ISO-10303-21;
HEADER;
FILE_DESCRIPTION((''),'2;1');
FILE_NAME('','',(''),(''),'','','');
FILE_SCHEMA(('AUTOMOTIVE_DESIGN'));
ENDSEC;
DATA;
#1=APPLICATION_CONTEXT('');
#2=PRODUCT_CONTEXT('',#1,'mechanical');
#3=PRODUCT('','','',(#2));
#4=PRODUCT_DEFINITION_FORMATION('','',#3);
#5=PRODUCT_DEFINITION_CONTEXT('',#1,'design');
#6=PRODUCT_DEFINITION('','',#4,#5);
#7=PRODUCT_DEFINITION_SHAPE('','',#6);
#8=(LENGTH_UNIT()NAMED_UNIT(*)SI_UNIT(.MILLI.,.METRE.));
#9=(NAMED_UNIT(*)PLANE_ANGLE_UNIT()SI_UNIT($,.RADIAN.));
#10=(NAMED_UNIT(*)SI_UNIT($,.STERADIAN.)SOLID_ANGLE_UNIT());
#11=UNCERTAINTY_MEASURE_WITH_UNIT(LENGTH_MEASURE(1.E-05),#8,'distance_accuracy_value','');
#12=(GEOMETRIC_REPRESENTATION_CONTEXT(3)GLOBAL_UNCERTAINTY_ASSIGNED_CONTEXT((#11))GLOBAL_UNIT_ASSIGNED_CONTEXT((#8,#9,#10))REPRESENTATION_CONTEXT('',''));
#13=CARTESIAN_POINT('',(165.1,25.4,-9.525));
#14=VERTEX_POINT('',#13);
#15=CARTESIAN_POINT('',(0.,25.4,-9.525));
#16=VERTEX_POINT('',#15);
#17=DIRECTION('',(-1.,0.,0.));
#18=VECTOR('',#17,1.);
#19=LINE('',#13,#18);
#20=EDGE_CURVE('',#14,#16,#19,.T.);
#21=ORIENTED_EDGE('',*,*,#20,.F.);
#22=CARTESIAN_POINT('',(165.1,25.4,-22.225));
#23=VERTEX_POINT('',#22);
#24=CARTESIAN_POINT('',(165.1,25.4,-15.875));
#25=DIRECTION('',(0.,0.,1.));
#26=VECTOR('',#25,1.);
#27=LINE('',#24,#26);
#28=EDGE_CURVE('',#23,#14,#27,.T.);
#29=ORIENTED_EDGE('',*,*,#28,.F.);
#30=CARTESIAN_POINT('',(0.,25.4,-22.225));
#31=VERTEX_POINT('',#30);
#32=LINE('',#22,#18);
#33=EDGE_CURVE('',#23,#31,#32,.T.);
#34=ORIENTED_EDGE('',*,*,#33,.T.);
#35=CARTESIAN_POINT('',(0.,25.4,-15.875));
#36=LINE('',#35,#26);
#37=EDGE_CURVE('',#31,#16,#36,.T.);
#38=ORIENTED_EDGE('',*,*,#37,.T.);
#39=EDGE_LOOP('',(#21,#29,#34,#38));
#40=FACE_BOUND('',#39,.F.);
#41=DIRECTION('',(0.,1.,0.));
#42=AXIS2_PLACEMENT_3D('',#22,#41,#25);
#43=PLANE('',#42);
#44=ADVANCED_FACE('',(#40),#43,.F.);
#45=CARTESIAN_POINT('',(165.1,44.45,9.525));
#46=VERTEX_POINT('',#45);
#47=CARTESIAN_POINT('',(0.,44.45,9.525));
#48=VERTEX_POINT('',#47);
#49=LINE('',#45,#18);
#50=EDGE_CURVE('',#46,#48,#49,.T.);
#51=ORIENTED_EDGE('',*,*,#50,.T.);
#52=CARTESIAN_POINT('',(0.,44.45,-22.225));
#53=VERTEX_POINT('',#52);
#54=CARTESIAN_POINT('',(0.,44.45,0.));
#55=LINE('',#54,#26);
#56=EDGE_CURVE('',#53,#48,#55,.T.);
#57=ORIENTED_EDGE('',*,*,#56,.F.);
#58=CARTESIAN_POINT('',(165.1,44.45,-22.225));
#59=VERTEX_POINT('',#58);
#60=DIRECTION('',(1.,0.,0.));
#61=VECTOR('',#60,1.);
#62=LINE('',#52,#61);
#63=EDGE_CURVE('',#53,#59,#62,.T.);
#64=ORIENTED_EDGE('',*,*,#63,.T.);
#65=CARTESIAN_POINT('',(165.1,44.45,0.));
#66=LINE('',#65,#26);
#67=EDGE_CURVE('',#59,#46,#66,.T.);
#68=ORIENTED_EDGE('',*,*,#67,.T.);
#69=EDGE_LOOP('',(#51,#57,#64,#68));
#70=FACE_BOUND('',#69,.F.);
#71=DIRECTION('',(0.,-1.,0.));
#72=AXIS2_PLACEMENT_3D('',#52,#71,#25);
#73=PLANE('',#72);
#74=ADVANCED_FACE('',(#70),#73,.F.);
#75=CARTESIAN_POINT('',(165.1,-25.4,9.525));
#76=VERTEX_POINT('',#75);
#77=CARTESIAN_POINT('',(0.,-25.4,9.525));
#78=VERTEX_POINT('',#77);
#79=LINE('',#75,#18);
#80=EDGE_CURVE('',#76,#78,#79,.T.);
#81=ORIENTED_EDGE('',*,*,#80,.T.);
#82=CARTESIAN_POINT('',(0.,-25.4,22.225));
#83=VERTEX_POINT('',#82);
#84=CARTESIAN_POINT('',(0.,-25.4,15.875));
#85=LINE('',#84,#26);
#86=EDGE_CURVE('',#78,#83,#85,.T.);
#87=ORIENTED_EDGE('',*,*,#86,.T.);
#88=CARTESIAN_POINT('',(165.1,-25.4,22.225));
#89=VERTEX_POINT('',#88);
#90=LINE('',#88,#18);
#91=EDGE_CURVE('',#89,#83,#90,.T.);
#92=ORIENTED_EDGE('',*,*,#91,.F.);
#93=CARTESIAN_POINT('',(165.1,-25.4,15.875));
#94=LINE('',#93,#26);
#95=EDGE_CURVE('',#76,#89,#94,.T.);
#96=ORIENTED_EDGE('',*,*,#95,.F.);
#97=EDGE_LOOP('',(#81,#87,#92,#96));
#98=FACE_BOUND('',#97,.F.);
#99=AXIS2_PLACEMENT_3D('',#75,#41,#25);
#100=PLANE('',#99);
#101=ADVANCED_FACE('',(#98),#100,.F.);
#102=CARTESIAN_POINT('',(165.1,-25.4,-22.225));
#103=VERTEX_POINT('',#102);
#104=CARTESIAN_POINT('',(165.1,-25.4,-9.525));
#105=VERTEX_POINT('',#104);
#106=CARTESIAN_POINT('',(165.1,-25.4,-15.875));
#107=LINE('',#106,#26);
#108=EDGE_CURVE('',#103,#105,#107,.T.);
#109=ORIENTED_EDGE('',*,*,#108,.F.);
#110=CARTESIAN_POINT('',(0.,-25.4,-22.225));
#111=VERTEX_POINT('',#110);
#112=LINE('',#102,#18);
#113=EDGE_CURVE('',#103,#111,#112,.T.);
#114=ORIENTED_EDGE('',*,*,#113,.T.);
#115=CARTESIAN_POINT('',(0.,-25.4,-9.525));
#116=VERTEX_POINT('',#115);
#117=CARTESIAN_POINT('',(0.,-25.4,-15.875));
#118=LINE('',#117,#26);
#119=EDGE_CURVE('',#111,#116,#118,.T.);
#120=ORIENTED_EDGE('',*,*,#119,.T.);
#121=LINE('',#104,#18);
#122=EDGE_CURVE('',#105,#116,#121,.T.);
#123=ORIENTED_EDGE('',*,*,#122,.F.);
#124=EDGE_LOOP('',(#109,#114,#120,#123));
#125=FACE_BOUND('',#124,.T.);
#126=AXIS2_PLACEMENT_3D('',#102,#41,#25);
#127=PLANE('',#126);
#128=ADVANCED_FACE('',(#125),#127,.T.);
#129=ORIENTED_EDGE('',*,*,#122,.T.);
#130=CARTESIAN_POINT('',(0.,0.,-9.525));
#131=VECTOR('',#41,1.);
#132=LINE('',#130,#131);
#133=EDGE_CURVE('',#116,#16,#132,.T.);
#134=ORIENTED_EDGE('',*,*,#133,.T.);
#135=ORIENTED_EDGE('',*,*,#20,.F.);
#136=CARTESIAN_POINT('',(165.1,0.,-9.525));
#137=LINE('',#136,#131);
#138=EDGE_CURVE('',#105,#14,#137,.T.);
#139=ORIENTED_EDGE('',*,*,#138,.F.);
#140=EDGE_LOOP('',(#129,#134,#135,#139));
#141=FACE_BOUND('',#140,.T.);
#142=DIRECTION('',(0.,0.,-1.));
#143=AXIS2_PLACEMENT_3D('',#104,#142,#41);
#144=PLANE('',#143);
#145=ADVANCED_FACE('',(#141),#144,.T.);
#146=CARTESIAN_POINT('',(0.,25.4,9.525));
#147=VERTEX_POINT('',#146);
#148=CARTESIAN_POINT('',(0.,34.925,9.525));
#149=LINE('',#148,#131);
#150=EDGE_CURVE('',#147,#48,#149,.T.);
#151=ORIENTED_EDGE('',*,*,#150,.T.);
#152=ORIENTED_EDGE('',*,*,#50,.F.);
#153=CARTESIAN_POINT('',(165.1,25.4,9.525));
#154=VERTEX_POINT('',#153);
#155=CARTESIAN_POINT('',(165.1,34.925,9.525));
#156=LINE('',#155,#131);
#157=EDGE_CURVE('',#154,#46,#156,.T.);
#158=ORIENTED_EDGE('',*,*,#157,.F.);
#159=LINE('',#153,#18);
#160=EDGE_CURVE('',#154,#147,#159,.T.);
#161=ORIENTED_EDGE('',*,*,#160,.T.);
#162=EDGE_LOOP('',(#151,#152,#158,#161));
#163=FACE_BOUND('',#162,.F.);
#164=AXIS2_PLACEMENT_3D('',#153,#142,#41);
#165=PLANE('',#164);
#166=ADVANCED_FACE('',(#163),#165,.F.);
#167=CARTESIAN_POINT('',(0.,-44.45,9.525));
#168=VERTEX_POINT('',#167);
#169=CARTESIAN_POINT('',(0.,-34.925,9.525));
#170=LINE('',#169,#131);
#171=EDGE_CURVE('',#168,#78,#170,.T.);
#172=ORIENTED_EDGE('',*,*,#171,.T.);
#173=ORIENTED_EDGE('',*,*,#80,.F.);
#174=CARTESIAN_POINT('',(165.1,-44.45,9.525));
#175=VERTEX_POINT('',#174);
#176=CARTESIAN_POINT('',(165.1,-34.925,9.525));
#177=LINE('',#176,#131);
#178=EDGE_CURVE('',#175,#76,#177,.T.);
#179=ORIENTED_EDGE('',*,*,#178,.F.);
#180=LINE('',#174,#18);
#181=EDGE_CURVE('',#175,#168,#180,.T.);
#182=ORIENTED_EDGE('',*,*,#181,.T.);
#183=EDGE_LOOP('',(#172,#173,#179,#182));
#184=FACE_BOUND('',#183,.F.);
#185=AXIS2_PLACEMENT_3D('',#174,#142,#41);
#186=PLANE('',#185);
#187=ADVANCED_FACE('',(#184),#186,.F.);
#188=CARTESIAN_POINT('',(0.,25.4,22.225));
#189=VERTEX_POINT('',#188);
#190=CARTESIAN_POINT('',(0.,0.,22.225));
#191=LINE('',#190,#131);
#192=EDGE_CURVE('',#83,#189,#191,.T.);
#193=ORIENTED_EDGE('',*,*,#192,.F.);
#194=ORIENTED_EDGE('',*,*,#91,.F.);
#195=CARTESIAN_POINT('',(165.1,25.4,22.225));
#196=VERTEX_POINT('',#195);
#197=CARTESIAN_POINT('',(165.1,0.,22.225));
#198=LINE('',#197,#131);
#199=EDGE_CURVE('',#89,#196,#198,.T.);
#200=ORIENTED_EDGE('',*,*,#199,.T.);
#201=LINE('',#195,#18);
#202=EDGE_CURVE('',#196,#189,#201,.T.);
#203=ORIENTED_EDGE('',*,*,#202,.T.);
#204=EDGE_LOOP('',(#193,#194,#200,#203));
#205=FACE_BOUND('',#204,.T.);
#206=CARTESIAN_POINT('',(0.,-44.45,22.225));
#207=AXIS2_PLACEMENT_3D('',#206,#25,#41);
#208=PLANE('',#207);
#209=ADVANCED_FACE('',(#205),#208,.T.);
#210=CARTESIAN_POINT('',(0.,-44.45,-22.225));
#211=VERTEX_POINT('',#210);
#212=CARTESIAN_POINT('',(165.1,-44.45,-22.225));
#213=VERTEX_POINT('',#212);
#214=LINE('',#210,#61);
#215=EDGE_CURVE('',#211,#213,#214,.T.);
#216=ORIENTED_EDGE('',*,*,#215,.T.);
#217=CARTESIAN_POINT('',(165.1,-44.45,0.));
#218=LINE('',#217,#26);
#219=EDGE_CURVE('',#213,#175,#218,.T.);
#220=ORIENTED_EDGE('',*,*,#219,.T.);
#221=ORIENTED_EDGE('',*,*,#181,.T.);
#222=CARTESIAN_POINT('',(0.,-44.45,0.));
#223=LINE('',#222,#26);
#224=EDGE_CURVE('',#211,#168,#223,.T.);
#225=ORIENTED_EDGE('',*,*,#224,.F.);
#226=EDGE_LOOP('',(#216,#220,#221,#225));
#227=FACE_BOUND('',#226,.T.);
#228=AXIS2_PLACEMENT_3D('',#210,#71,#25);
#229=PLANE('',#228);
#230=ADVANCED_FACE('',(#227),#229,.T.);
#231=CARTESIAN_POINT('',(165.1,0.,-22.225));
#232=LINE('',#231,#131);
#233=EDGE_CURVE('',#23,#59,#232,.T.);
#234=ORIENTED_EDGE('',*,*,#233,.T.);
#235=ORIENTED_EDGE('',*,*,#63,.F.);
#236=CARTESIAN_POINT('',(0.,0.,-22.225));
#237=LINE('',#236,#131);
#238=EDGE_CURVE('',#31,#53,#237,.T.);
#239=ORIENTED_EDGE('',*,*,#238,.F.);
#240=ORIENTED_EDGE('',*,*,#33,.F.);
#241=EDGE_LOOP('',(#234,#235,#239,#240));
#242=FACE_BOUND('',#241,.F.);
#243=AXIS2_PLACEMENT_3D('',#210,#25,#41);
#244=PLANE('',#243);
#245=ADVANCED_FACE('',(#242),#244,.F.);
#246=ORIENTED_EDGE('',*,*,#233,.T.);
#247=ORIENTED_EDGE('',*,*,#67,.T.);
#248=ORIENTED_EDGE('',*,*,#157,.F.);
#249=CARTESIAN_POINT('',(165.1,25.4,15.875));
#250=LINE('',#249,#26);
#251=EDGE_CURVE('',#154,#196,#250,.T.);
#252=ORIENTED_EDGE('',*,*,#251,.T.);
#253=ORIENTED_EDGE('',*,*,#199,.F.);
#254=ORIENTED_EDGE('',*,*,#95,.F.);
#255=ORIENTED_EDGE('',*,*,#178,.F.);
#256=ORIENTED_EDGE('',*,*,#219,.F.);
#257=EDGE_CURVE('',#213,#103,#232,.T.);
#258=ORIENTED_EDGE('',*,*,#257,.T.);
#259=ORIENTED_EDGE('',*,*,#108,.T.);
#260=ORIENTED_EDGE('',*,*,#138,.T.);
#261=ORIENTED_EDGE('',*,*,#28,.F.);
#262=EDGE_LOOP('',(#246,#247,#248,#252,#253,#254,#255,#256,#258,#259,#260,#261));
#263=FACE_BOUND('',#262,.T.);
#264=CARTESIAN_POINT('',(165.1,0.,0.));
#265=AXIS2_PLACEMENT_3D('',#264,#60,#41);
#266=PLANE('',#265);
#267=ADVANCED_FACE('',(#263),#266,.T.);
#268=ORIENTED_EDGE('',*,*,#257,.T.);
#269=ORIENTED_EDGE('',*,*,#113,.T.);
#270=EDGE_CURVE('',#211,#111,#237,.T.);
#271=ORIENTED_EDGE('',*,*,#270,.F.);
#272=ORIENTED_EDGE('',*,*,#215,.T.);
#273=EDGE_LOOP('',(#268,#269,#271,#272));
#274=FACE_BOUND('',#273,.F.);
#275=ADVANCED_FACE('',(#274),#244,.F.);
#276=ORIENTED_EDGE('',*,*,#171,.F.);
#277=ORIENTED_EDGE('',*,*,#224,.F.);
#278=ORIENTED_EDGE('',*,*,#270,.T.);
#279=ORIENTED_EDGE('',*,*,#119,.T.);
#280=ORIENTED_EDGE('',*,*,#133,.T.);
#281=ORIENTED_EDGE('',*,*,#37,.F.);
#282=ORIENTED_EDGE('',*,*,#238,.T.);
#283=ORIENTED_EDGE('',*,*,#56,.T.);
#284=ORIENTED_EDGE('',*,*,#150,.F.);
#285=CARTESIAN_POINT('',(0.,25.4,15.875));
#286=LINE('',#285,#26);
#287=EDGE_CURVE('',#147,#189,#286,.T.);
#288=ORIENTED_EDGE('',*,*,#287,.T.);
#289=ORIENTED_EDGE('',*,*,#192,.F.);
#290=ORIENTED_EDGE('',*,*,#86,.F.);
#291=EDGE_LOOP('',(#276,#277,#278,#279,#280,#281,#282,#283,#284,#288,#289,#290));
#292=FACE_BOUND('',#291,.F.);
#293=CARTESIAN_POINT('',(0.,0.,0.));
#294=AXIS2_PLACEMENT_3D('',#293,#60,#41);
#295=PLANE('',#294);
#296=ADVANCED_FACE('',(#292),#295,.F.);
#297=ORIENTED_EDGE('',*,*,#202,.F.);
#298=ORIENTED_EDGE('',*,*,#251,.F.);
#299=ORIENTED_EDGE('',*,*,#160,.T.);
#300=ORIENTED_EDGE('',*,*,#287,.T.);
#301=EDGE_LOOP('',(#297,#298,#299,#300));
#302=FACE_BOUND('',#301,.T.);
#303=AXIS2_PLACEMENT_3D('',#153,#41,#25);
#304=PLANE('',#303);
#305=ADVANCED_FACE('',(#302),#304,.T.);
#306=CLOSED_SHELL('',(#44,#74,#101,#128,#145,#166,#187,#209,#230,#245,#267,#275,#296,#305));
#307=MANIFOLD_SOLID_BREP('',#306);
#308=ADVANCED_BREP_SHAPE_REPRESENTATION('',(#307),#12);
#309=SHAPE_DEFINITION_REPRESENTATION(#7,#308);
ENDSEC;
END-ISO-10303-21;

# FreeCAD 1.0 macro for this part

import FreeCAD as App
import Part
import Sketcher
Q = App.Units.Quantity

doc = App.newDocument("Part")
body = doc.addObject("PartDesign::Body", "Body")

# Sketch on YZ plane
sketch1 = body.newObject("Sketcher::SketchObject", "Sketch")
sketch1.AttachmentSupport = (doc.getObject("YZ_Plane"), [""])
sketch1.MapMode = "FlatFace"
sketch1.addGeometry(Part.LineSegment(App.Vector(-44.45, 22.225, 0), App.Vector(-44.45, -22.225, 0)), False)
sketch1.addGeometry(Part.LineSegment(App.Vector(-44.45, -22.225, 0), App.Vector(44.45, -22.225, 0)), False)
sketch1.addGeometry(Part.LineSegment(App.Vector(44.45, -22.225, 0), App.Vector(44.45, 22.225, 0)), False)
sketch1.addGeometry(Part.LineSegment(App.Vector(44.45, 22.225, 0), App.Vector(-44.45, 22.225, 0)), False)
sketch1.addConstraint(Sketcher.Constraint("Coincident", 0, 2, 1, 1))
sketch1.addConstraint(Sketcher.Constraint("Coincident", 1, 2, 2, 1))
sketch1.addConstraint(Sketcher.Constraint("Coincident", 2, 2, 3, 1))
sketch1.addConstraint(Sketcher.Constraint("Coincident", 3, 2, 0, 1))
sketch1.addConstraint(Sketcher.Constraint("Vertical", 0))
sketch1.addConstraint(Sketcher.Constraint("Horizontal", 1))
sketch1.addConstraint(Sketcher.Constraint("Vertical", 2))
sketch1.addConstraint(Sketcher.Constraint("Horizontal", 3))
sketch1.addConstraint(Sketcher.Constraint("Symmetric", 0, 2, 2, 2, -1, 1))
sketch1.addConstraint(Sketcher.Constraint("DistanceX", 1, 1, 1, 2, Q("3.5 in")))
sketch1.addConstraint(Sketcher.Constraint("DistanceY", 0, 2, 0, 1, Q("1.75 in")))
pad1 = body.newObject("PartDesign::Pad", "Pad")
pad1.Profile = sketch1
pad1.Length = Q("6.5 in")

# Sketch on YZ plane
sketch2 = body.newObject("Sketcher::SketchObject", "Sketch001")
sketch2.AttachmentSupport = (doc.getObject("YZ_Plane"), [""])
sketch2.MapMode = "FlatFace"
sketch2.AttachmentOffset = App.Placement(App.Vector(0, 0, 6.5 * 25.4), App.Rotation())
sketch2.addGeometry(Part.LineSegment(App.Vector(-44.45, 22.225, 0), App.Vector(-44.45, 9.525, 0)), False)
sketch2.addGeometry(Part.LineSegment(App.Vector(-44.45, 9.525, 0), App.Vector(-25.4, 9.525, 0)), False)
sketch2.addGeometry(Part.LineSegment(App.Vector(-25.4, 9.525, 0), App.Vector(-25.4, 22.225, 0)), False)
sketch2.addGeometry(Part.LineSegment(App.Vector(-25.4, 22.225, 0), App.Vector(-44.45, 22.225, 0)), False)
sketch2.addGeometry(Part.LineSegment(App.Vector(25.4, 22.225, 0), App.Vector(25.4, 9.525, 0)), False)
sketch2.addGeometry(Part.LineSegment(App.Vector(25.4, 9.525, 0), App.Vector(44.45, 9.525, 0)), False)
sketch2.addGeometry(Part.LineSegment(App.Vector(44.45, 9.525, 0), App.Vector(44.45, 22.225, 0)), False)
sketch2.addGeometry(Part.LineSegment(App.Vector(44.45, 22.225, 0), App.Vector(25.4, 22.225, 0)), False)
sketch2.addGeometry(Part.LineSegment(App.Vector(-25.4, -9.525, 0), App.Vector(-25.4, -22.225, 0)), False)
sketch2.addGeometry(Part.LineSegment(App.Vector(-25.4, -22.225, 0), App.Vector(25.4, -22.225, 0)), False)
sketch2.addGeometry(Part.LineSegment(App.Vector(25.4, -22.225, 0), App.Vector(25.4, -9.525, 0)), False)
sketch2.addGeometry(Part.LineSegment(App.Vector(25.4, -9.525, 0), App.Vector(-25.4, -9.525, 0)), False)
sketch2.addConstraint(Sketcher.Constraint("Coincident", 0, 2, 1, 1))
sketch2.addConstraint(Sketcher.Constraint("Coincident", 1, 2, 2, 1))
sketch2.addConstraint(Sketcher.Constraint("Coincident", 2, 2, 3, 1))
sketch2.addConstraint(Sketcher.Constraint("Coincident", 3, 2, 0, 1))
sketch2.addConstraint(Sketcher.Constraint("Coincident", 4, 2, 5, 1))
sketch2.addConstraint(Sketcher.Constraint("Coincident", 5, 2, 6, 1))
sketch2.addConstraint(Sketcher.Constraint("Coincident", 6, 2, 7, 1))
sketch2.addConstraint(Sketcher.Constraint("Coincident", 7, 2, 4, 1))
sketch2.addConstraint(Sketcher.Constraint("Coincident", 8, 2, 9, 1))
sketch2.addConstraint(Sketcher.Constraint("Coincident", 9, 2, 10, 1))
sketch2.addConstraint(Sketcher.Constraint("Coincident", 10, 2, 11, 1))
sketch2.addConstraint(Sketcher.Constraint("Coincident", 11, 2, 8, 1))
sketch2.addConstraint(Sketcher.Constraint("Vertical", 0))
sketch2.addConstraint(Sketcher.Constraint("Horizontal", 1))
sketch2.addConstraint(Sketcher.Constraint("Vertical", 2))
sketch2.addConstraint(Sketcher.Constraint("Horizontal", 3))
sketch2.addConstraint(Sketcher.Constraint("Vertical", 4))
sketch2.addConstraint(Sketcher.Constraint("Horizontal", 5))
sketch2.addConstraint(Sketcher.Constraint("Vertical", 6))
sketch2.addConstraint(Sketcher.Constraint("Horizontal", 7))
sketch2.addConstraint(Sketcher.Constraint("Vertical", 8))
sketch2.addConstraint(Sketcher.Constraint("Horizontal", 9))
sketch2.addConstraint(Sketcher.Constraint("Vertical", 10))
sketch2.addConstraint(Sketcher.Constraint("Horizontal", 11))
sketch2.addConstraint(Sketcher.Constraint("Symmetric", 7, 2, 8, 2, -1, 1))
sketch2.addConstraint(Sketcher.Constraint("Symmetric", 2, 2, 9, 2, -1, 1))
sketch2.addConstraint(Sketcher.Constraint("Symmetric", 1, 2, 4, 2, -2))
sketch2.addConstraint(Sketcher.Constraint("Equal", 3, 5))
sketch2.addConstraint(Sketcher.Constraint("Equal", 6, 8))
sketch2.addConstraint(Sketcher.Constraint("DistanceX", 9, 1, 9, 2, Q("2 in")))
sketch2.addConstraint(Sketcher.Constraint("DistanceY", 0, 2, 0, 1, Q("0.5 in")))
sketch2.addConstraint(Sketcher.Constraint("DistanceX", 1, 1, 1, 2, Q("0.75 in")))
sketch2.addConstraint(Sketcher.Constraint("DistanceY", 8, 2, 1, 2, Q("1.25 in")))
pocket1 = body.newObject("PartDesign::Pocket", "Pocket")
pocket1.Profile = sketch2
pocket1.Length = Q("6.5 in")

doc.recompute()
